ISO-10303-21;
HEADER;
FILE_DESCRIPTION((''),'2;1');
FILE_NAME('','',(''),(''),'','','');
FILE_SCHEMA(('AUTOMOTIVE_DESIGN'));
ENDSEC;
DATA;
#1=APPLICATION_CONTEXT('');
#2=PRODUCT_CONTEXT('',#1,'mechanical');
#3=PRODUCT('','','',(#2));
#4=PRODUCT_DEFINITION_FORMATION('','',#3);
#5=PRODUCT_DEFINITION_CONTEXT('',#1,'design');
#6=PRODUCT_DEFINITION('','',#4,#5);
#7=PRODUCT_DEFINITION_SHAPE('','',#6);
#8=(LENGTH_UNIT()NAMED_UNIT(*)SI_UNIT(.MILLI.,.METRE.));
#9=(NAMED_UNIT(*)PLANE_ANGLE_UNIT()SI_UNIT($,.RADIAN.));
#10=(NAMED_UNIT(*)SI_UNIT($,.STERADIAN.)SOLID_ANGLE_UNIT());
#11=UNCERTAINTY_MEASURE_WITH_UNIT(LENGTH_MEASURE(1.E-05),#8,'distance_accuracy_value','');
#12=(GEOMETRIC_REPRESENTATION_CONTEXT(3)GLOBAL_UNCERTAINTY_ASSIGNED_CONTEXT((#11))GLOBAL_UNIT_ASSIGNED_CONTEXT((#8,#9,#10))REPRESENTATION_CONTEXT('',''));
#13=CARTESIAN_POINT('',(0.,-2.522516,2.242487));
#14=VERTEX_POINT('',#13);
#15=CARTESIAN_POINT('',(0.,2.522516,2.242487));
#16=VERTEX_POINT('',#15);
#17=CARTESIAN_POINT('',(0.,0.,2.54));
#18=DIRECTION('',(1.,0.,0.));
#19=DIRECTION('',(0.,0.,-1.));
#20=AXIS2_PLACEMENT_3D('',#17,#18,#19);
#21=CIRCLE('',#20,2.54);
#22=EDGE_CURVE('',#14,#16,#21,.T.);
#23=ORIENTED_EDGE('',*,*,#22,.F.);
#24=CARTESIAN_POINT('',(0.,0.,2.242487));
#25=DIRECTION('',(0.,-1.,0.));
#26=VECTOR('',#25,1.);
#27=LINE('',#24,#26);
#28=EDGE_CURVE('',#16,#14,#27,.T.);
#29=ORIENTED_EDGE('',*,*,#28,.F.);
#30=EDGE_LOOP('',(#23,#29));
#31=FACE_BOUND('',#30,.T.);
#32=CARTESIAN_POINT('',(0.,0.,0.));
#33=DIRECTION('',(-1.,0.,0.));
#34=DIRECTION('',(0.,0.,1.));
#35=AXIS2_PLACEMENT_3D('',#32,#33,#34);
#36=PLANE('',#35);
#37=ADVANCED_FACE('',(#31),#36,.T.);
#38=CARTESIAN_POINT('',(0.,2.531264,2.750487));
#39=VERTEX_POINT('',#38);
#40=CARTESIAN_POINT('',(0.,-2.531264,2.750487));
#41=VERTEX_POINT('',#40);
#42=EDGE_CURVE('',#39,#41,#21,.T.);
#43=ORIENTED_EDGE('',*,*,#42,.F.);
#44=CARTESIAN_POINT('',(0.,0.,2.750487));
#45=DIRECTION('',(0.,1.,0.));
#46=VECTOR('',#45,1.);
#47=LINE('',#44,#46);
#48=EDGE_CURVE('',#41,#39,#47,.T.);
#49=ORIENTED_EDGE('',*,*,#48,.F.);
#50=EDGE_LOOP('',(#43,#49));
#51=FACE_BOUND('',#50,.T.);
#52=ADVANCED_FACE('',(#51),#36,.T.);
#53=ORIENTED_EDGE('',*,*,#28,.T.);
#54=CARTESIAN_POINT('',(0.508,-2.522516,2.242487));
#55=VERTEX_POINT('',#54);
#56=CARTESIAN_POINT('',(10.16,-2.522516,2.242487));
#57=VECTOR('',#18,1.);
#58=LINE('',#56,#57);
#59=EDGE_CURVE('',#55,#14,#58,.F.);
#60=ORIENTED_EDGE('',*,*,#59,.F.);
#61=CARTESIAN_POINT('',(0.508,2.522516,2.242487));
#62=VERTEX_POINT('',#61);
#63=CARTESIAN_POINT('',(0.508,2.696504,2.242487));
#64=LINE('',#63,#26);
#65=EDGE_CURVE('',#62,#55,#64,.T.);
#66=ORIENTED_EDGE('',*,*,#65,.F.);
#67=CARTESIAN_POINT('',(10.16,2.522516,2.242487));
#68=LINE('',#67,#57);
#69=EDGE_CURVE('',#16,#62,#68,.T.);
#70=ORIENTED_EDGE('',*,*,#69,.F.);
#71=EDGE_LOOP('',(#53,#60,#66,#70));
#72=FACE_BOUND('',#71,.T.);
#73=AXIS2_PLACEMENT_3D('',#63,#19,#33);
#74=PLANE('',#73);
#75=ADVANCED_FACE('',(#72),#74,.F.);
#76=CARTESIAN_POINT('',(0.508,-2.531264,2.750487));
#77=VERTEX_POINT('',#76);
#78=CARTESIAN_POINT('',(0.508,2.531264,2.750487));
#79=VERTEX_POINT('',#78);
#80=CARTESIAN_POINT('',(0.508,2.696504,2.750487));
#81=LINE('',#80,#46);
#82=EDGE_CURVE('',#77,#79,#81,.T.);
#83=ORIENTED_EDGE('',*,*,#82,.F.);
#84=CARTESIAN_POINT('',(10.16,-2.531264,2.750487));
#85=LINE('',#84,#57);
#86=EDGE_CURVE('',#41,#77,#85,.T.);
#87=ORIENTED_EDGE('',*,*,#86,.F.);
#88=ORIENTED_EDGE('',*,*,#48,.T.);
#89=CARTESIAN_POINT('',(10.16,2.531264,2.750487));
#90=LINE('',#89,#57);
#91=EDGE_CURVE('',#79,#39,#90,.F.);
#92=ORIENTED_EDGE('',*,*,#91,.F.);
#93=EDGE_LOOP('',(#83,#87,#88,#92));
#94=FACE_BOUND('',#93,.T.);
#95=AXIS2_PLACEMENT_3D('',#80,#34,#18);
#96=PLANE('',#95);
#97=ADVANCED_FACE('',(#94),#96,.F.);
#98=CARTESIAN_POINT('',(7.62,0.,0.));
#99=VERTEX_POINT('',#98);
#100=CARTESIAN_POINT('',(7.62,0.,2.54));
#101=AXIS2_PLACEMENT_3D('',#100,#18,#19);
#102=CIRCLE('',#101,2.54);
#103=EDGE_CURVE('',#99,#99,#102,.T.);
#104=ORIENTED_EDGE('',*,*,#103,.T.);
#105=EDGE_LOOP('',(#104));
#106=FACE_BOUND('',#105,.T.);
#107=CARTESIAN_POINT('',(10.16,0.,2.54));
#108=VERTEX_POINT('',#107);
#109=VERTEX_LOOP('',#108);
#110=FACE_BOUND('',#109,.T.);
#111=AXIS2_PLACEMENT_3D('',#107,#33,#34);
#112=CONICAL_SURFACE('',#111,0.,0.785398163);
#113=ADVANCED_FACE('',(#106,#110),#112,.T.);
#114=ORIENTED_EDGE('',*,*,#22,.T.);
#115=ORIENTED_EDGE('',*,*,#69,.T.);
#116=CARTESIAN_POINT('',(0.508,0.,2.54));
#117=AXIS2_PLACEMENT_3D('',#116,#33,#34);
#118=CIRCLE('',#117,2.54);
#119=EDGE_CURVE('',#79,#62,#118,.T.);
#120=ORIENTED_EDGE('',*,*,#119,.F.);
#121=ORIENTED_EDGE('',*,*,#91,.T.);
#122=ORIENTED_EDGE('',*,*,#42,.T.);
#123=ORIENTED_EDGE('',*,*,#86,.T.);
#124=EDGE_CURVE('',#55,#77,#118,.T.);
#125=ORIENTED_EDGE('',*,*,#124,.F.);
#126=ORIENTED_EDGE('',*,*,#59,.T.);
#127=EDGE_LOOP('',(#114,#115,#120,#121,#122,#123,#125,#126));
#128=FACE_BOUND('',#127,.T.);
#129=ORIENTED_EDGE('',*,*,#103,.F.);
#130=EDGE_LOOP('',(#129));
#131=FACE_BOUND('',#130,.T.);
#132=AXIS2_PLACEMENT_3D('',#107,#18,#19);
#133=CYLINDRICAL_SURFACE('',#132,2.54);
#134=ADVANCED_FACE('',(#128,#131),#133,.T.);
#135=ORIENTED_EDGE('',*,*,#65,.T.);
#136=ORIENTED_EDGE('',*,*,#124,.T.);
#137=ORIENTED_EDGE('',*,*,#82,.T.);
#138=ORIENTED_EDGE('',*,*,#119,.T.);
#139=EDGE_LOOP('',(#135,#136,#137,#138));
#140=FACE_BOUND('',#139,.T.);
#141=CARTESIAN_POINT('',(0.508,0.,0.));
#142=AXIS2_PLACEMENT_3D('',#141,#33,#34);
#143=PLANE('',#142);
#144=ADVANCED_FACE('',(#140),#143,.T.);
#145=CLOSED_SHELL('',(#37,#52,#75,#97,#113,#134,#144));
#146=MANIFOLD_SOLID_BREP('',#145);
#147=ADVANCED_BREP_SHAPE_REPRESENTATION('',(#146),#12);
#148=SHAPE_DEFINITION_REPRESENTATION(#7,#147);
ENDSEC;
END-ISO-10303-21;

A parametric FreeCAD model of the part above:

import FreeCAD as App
import Part
import Sketcher

V = App.Vector
Q = App.Units.Quantity

doc = App.newDocument("Part")
body = doc.addObject("PartDesign::Body", "Body")

# Sketch on XZ plane
sketch1 = doc.addObject("Sketcher::SketchObject", "Sketch")
body.addObject(sketch1)
sketch1.AttachmentSupport = (doc.XZ_Plane, [""])
sketch1.MapMode = "FlatFace"
sketch1.addGeometry([
    Part.LineSegment(V(10.2, 2.5, 0), V(7.6, 0, 0)),
    Part.LineSegment(V(7.6, 0, 0), V(0, 0, 0)),
    Part.LineSegment(V(0, 0, 0), V(0, 2.5, 0)),
    Part.LineSegment(V(0, 2.5, 0), V(10.2, 2.5, 0)),
], False)
sketch1.addGeometry(Part.LineSegment(V(10.2, 2.5, 0), V(0, 2.5, 0)), True)  # axis
sketch1.addConstraint([
    Sketcher.Constraint("Coincident", 0, 2, 1, 1),
    Sketcher.Constraint("Coincident", 1, 2, 2, 1),
    Sketcher.Constraint("Coincident", 2, 2, 3, 1),
    Sketcher.Constraint("Coincident", 3, 2, 0, 1),
    Sketcher.Constraint("Horizontal", 1),
    Sketcher.Constraint("Vertical", 2),
    Sketcher.Constraint("Horizontal", 3),
    Sketcher.Constraint("Horizontal", 4),
    Sketcher.Constraint("Coincident", 1, 2, -1, 1),
    Sketcher.Constraint("Coincident", 4, 1, 3, 2),
    Sketcher.Constraint("PointOnObject", 4, 2, -2),
    Sketcher.Constraint("DistanceX", 1, 2, 1, 1, Q("0.3 in")),
    Sketcher.Constraint("DistanceX", 3, 1, 3, 2, Q("0.4 in")),
    Sketcher.Constraint("DistanceY", 2, 1, 2, 2, Q("0.1 in")),
])
revolution = doc.addObject("PartDesign::Revolution", "Revolution")
body.addObject(revolution)
revolution.Profile = sketch1
revolution.ReferenceAxis = (sketch1, ["Axis0"])
revolution.Angle = 360

# Sketch on YZ plane
sketch2 = doc.addObject("Sketcher::SketchObject", "Sketch001")
body.addObject(sketch2)
sketch2.AttachmentSupport = (doc.YZ_Plane, [""])
sketch2.MapMode = "FlatFace"
sketch2.addGeometry([
    Part.LineSegment(V(2.7, 2.2, 0), V(-2.7, 2.2, 0)),
    Part.LineSegment(V(-2.7, 2.2, 0), V(-2.7, 2.8, 0)),
    Part.LineSegment(V(-2.7, 2.8, 0), V(2.7, 2.8, 0)),
    Part.LineSegment(V(2.7, 2.8, 0), V(2.7, 2.2, 0)),
], False)
sketch2.addConstraint([
    Sketcher.Constraint("Coincident", 0, 2, 1, 1),
    Sketcher.Constraint("Coincident", 1, 2, 2, 1),
    Sketcher.Constraint("Coincident", 2, 2, 3, 1),
    Sketcher.Constraint("Coincident", 3, 2, 0, 1),
    Sketcher.Constraint("Horizontal", 0),
    Sketcher.Constraint("Vertical", 1),
    Sketcher.Constraint("Horizontal", 2),
    Sketcher.Constraint("Vertical", 3),
    Sketcher.Constraint("DistanceY", 1, 1, 1, 2, Q("0.02 in")),
    Sketcher.Constraint("DistanceX", 0, 2, 0, 1, Q("5.430732 mm")),
    Sketcher.Constraint("DistanceX", 0, 2, -1, 1, Q("2.734228 mm")),
    Sketcher.Constraint("DistanceY", -1, 1, 0, 2, Q("2.242487 mm")),
])
pocket1 = doc.addObject("PartDesign::Pocket", "Pocket")
body.addObject(pocket1)
pocket1.Profile = sketch2
pocket1.Length = Q("0.02 in")
pocket1.Reversed = True

doc.recompute()
